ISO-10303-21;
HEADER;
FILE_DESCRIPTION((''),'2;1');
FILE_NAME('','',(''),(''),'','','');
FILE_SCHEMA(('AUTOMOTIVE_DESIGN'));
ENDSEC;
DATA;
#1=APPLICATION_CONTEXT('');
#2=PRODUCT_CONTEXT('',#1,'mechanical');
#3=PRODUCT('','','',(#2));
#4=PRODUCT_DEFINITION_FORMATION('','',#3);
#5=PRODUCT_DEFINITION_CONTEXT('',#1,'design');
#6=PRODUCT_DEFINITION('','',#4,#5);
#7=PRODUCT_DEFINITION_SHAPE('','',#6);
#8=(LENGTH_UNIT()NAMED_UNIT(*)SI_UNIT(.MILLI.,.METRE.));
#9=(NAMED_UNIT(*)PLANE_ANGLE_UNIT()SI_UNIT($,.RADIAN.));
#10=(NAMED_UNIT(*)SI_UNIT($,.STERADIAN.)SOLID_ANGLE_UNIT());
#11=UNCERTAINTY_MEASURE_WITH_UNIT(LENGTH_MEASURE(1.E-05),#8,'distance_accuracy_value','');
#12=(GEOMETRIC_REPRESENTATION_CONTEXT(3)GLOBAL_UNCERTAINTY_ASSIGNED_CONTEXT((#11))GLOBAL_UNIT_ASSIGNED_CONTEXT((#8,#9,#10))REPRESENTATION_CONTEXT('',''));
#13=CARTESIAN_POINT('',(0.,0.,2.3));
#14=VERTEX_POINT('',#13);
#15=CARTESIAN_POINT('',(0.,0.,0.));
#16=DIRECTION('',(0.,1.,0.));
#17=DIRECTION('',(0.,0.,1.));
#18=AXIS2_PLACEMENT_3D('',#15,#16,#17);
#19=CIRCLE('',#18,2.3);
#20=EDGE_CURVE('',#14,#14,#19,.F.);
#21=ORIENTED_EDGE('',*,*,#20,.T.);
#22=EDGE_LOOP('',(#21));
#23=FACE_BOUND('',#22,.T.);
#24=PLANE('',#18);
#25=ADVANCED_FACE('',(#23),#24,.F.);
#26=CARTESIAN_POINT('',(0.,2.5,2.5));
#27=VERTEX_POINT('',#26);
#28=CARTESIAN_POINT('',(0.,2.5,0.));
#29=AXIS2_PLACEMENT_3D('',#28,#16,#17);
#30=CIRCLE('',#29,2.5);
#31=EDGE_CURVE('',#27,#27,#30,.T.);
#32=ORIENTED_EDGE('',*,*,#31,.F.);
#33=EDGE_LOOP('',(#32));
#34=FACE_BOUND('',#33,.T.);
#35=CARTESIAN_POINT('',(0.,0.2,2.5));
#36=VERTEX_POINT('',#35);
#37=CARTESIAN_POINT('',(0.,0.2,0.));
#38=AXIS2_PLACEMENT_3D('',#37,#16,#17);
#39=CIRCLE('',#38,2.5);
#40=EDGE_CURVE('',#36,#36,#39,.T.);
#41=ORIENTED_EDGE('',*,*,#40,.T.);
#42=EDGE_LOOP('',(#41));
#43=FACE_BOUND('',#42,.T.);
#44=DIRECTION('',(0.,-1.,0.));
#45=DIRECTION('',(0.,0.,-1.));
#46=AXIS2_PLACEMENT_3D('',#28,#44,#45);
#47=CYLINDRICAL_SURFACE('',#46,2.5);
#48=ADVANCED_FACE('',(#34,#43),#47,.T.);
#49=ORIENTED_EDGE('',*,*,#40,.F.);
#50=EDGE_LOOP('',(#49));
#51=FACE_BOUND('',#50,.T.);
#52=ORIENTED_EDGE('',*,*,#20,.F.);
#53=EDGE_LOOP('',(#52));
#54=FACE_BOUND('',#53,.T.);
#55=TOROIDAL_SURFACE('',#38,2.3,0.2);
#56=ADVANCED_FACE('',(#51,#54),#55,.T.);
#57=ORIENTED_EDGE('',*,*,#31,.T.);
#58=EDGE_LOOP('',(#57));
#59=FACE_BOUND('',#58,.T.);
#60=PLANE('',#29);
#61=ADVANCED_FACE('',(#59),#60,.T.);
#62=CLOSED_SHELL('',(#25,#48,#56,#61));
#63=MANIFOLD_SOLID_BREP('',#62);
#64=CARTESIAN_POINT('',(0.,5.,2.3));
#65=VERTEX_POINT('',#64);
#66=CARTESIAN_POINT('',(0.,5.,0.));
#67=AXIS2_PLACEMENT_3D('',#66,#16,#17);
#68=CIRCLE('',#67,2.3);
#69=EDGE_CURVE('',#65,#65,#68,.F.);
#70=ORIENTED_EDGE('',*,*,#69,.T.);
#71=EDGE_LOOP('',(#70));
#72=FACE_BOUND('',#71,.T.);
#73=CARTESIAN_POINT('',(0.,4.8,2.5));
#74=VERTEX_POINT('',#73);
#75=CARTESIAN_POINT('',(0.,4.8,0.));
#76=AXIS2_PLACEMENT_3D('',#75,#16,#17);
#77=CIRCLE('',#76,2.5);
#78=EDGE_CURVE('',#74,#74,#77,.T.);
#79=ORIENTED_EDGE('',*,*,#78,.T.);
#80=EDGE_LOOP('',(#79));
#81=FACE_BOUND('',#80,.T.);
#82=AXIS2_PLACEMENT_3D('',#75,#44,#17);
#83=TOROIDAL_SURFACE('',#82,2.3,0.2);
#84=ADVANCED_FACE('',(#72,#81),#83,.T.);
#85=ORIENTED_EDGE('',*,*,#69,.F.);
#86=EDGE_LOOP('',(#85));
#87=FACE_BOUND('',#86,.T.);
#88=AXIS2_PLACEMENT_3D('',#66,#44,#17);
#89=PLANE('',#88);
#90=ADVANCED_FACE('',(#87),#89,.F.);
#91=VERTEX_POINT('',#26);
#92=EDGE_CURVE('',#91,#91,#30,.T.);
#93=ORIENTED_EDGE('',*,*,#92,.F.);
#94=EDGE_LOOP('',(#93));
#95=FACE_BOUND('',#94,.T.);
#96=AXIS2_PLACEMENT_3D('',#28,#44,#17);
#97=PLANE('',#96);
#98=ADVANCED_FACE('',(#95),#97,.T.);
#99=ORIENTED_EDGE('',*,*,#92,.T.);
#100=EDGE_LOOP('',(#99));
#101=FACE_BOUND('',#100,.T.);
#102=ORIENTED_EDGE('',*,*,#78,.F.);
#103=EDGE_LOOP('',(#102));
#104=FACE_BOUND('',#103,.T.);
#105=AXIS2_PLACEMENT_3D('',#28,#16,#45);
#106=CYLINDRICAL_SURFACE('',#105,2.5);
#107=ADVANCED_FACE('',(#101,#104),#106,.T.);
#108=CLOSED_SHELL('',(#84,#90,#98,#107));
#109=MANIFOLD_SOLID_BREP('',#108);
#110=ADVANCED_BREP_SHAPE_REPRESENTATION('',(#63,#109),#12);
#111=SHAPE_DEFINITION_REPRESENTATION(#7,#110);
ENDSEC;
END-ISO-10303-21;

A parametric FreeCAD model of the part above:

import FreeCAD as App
import Part
import Sketcher
from FreeCAD import Vector


def edges_at(feature, points):
    """Names of the edges that pass closest to the given points."""
    edges = feature.Shape.Edges
    near = lambda p: min(range(len(edges)), key=lambda i: edges[i].distToShape(Part.Vertex(*p))[0])
    return sorted({f"Edge{near(p) + 1}" for p in points})

doc = App.newDocument("Part")
body = doc.addObject("PartDesign::Body", "Body")

# Sketch on XZ plane
sketch1 = body.newObject("Sketcher::SketchObject", "Sketch")
sketch1.AttachmentSupport = (doc.getObject("XZ_Plane"), [""])
sketch1.MapMode = "FlatFace"
sketch1.addGeometry(Part.Circle(Vector(0, 0, 0), Vector(0, 0, 1), 2.5), False)
sketch1.addConstraint(Sketcher.Constraint("Coincident", 0, 3, -1, 1))
sketch1.addConstraint(Sketcher.Constraint("Diameter", 0, 5.0))
pad1 = body.newObject("PartDesign::Pad", "Pad")
pad1.Profile = sketch1
pad1.Length = 2.5
pad1.Reversed = True
doc.recompute()

fillet = body.newObject("PartDesign::Fillet", "Fillet")
fillet.Base = (pad1, edges_at(pad1, [(0, 0, -2.5)]))
fillet.Radius = 0.2
body2 = doc.addObject("PartDesign::Body", "Body001")
doc.recompute()

mirroring = doc.addObject("Part::Mirroring", "Mirroring")
mirroring.Source = body
mirroring.Base = Vector(0, 2.5, 0)
mirroring.Normal = Vector(0, 1, 0)
body2.BaseFeature = mirroring
doc.recompute()
mirroring.Visibility = False

doc.recompute()
